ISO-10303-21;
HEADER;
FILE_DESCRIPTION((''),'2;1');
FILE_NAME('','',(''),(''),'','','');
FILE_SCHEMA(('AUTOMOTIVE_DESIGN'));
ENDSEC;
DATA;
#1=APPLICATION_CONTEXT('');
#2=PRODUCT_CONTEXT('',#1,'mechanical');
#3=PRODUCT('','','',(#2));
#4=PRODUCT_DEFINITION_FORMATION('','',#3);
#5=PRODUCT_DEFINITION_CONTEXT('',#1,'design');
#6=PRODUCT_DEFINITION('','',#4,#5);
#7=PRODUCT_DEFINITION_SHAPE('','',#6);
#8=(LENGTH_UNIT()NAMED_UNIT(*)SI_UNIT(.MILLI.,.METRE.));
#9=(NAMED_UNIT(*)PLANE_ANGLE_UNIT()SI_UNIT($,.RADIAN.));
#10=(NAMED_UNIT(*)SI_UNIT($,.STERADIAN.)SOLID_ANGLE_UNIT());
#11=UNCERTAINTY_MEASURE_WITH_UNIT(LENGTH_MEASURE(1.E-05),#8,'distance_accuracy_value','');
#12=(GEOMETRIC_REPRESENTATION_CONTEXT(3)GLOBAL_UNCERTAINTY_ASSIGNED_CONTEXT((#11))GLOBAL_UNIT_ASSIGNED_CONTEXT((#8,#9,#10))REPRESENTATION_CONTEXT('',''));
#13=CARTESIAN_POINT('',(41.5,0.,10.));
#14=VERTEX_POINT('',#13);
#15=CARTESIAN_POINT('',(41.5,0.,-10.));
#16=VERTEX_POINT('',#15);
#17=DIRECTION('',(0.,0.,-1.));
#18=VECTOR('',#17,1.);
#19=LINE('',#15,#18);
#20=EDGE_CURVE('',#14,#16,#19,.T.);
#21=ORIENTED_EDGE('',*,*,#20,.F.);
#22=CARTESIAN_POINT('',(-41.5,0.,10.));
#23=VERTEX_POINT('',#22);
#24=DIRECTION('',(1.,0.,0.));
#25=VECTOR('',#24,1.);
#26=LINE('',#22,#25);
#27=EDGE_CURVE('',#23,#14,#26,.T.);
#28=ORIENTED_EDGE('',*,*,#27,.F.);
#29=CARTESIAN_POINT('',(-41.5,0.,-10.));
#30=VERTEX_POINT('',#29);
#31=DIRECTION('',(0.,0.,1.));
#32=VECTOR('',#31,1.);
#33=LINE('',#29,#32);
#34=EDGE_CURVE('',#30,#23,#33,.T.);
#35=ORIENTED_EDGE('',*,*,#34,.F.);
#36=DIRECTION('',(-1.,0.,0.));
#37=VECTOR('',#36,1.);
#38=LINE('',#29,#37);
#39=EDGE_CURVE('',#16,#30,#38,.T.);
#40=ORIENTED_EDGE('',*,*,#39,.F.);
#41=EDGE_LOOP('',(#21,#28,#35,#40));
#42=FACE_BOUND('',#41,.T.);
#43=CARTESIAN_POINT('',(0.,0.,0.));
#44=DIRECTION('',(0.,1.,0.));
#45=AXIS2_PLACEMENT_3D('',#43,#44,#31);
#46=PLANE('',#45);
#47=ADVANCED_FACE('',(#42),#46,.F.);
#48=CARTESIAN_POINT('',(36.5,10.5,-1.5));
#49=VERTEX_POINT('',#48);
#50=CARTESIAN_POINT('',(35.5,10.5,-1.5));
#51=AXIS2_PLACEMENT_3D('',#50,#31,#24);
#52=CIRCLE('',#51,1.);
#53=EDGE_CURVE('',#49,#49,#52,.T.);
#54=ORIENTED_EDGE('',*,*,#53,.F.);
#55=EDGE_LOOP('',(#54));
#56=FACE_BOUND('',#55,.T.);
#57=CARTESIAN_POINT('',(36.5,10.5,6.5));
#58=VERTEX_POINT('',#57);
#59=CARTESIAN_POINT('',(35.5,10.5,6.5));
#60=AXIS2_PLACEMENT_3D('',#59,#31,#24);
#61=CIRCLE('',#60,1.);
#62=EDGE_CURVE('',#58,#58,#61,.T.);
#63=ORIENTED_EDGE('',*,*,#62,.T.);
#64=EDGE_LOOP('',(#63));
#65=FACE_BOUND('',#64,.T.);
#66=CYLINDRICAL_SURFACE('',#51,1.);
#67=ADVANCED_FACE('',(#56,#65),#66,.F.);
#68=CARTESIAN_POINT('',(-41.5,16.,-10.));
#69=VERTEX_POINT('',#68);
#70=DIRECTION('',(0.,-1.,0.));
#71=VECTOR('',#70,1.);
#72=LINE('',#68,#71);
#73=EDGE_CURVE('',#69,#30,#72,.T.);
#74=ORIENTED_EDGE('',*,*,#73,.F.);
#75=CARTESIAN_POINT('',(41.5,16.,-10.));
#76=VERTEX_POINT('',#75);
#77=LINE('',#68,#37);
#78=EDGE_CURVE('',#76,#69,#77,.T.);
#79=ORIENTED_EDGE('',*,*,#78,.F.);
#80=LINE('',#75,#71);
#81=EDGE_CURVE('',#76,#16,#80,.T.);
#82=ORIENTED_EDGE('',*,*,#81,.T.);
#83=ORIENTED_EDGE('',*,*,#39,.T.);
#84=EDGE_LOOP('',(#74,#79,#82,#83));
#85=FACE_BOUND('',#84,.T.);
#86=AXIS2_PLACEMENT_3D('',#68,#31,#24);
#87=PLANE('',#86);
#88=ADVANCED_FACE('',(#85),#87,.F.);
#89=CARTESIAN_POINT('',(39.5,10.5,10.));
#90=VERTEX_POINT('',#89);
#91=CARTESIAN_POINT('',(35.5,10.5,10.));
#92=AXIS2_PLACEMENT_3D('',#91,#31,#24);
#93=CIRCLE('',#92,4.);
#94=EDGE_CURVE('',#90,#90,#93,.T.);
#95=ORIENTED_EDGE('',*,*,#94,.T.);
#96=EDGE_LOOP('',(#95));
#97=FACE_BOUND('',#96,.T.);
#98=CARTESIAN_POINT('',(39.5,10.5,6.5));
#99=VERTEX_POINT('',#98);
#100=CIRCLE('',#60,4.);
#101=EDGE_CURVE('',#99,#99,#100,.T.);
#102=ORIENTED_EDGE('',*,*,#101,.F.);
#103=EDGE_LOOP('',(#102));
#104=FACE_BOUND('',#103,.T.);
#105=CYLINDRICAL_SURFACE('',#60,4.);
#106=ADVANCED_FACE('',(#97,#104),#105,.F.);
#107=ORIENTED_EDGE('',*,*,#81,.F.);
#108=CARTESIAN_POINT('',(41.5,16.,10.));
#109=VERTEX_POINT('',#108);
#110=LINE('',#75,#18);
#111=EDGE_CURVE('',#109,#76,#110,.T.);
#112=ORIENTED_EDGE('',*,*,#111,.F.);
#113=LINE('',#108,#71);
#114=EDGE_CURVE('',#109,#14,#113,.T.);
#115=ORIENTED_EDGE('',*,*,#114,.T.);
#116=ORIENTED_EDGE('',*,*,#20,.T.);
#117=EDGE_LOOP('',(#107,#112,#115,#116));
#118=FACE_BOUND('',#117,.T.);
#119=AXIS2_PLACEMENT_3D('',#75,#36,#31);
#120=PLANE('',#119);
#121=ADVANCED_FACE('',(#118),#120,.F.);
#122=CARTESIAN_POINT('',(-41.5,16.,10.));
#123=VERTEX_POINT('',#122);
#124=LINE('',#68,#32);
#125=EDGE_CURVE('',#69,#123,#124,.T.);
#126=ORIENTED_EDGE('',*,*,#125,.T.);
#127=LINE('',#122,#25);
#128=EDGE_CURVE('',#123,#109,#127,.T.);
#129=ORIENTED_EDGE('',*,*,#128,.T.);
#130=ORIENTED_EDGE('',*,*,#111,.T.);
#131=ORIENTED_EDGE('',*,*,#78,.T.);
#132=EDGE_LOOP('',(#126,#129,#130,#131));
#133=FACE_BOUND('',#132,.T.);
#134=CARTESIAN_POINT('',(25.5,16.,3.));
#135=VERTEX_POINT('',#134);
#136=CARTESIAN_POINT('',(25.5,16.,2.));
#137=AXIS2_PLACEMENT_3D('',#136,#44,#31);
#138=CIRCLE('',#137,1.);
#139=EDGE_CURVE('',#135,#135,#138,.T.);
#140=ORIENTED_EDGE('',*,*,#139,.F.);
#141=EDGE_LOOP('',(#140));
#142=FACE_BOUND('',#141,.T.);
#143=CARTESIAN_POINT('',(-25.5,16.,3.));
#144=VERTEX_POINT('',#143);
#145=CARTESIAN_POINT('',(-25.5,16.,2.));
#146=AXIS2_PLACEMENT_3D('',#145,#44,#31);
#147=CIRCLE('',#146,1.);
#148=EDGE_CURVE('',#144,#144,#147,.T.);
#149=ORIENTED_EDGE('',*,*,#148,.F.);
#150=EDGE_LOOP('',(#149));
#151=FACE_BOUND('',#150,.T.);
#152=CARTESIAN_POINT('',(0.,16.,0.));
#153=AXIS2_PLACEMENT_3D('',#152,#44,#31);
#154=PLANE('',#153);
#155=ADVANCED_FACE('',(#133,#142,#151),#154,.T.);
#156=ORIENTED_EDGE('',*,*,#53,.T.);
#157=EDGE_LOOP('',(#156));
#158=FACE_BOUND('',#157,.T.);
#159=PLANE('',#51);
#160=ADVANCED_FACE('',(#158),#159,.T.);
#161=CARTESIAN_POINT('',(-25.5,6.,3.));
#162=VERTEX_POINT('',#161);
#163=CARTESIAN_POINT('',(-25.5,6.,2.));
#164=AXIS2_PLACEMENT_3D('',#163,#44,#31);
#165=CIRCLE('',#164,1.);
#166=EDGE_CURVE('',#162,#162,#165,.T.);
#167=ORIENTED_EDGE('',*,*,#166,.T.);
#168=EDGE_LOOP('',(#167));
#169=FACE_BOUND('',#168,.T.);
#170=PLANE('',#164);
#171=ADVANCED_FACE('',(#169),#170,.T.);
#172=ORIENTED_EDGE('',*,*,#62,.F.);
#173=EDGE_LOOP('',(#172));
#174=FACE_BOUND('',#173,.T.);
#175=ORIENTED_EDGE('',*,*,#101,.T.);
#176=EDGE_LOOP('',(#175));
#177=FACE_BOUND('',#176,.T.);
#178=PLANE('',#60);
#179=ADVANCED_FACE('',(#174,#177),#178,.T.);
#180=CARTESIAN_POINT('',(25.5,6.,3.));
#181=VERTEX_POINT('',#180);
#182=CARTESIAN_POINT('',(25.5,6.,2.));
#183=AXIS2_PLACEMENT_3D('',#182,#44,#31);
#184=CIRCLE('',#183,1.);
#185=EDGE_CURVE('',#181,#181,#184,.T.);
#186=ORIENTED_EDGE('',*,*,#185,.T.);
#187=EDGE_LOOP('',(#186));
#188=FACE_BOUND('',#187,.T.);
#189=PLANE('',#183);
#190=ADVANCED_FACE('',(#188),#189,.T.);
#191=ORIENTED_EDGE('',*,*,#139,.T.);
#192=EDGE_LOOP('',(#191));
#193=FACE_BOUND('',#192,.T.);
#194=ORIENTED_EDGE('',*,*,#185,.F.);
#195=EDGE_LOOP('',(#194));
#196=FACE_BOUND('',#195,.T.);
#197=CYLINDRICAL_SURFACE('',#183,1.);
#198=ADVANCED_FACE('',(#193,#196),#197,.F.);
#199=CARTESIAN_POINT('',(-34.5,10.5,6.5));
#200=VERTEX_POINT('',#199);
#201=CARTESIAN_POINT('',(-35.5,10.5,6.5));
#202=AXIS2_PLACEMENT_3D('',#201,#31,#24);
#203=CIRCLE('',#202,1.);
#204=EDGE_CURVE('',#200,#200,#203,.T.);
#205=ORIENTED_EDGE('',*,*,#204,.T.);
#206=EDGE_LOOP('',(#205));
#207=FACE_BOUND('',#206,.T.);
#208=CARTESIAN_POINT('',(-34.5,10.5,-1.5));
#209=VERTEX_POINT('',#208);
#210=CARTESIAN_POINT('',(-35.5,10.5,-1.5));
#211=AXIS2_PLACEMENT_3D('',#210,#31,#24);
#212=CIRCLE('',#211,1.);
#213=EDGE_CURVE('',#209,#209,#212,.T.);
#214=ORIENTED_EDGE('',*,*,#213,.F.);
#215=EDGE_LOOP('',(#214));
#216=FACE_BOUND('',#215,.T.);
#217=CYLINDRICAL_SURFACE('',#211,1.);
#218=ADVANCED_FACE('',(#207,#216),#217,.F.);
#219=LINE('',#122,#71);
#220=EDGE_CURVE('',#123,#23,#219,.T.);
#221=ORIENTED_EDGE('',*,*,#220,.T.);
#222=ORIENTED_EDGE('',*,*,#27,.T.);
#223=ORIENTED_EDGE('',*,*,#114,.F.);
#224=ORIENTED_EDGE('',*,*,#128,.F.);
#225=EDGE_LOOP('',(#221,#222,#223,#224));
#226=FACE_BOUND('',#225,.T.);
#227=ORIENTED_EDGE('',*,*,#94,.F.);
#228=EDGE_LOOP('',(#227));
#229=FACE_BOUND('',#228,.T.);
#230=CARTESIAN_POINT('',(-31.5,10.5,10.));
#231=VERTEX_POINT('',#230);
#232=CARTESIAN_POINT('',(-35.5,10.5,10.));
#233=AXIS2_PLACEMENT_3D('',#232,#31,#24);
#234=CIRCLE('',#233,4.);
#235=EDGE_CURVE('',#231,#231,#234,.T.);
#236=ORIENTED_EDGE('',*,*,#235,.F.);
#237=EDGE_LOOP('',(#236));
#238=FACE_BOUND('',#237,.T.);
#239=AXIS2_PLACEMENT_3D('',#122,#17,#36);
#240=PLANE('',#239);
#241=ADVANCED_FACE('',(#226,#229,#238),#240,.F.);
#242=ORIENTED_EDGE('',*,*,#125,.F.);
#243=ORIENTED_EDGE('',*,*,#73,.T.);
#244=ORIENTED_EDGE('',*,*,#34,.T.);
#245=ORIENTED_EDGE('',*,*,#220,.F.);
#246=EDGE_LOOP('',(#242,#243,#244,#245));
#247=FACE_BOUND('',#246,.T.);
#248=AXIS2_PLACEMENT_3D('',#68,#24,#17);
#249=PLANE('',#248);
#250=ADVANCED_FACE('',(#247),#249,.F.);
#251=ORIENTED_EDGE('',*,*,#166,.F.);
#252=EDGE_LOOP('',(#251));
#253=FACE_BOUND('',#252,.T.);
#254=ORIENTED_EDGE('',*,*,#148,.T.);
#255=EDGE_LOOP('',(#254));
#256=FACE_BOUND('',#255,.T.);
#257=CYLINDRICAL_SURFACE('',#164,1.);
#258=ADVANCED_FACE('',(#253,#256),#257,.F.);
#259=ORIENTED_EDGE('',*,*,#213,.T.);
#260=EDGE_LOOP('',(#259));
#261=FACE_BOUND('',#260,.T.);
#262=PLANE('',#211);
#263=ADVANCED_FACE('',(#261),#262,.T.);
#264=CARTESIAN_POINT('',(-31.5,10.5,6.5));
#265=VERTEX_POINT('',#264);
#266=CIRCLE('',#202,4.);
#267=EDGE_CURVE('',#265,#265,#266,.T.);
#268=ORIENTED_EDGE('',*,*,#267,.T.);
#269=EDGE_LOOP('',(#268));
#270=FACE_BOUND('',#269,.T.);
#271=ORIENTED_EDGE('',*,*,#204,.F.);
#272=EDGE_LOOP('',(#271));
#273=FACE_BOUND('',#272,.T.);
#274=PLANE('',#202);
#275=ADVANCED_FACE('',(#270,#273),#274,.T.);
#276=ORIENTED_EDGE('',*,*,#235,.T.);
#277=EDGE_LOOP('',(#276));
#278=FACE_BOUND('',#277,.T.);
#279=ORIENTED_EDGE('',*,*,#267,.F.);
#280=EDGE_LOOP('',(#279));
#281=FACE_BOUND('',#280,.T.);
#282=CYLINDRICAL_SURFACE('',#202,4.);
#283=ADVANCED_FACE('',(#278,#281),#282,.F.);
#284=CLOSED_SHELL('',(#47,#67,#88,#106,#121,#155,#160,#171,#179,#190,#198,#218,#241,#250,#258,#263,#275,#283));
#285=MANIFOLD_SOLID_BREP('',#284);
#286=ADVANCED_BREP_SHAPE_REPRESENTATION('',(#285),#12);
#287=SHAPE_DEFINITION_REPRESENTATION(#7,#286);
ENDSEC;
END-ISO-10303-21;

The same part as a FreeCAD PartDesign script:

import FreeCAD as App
import Part
import Sketcher
from FreeCAD import Vector
Q = App.Units.Quantity


def add_polygon(sketch, points):
    """Adds a closed chain of lines whose ends are joined by coincident constraints."""
    first, n = sketch.GeometryCount, len(points)
    for a, b in zip(points, points[1:] + points[:1]):
        sketch.addGeometry(Part.LineSegment(App.Vector(*a, 0), App.Vector(*b, 0)), False)
    for i in range(n):
        sketch.addConstraint(Sketcher.Constraint("Coincident", first + i, 2, first + (i + 1) % n, 1))

doc = App.newDocument("Part")
body = doc.addObject("PartDesign::Body", "Body")

sketch1 = body.newObject("Sketcher::SketchObject", "Sketch")
sketch1.AttachmentSupport = (doc.getObject("XZ_Plane"), [""])
sketch1.MapMode = "FlatFace"
add_polygon(sketch1, [(-41.5, -10), (-41.5, 10), (41.5, 10), (41.5, -10)])
sketch1.addConstraint(Sketcher.Constraint("Vertical", 0))
sketch1.addConstraint(Sketcher.Constraint("Horizontal", 1))
sketch1.addConstraint(Sketcher.Constraint("Vertical", 2))
sketch1.addConstraint(Sketcher.Constraint("Horizontal", 3))
sketch1.addConstraint(Sketcher.Constraint("Symmetric", 0, 2, 2, 2, -1, 1))
sketch1.addConstraint(Sketcher.Constraint("DistanceX", 1, 1, 1, 2, Q("83 mm")))
sketch1.addConstraint(Sketcher.Constraint("DistanceY", 0, 1, 0, 2, Q("20 mm")))
pad1 = body.newObject("PartDesign::Pad", "Pad")
pad1.Profile = sketch1
pad1.Length = 16
pad1.Reversed = True

sketch2 = body.newObject("Sketcher::SketchObject", "Sketch001")
sketch2.AttachmentSupport = (doc.getObject("XY_Plane"), [""])
sketch2.MapMode = "FlatFace"
sketch2.AttachmentOffset = App.Placement(Vector(0, 0, 10), App.Rotation())
sketch2.addGeometry(Part.Circle(Vector(-35.5, 10.5, 0), Vector(0, 0, 1), 4), False)
sketch2.addGeometry(Part.Circle(Vector(35.5, 10.5, 0), Vector(0, 0, 1), 4), False)
sketch2.addConstraint(Sketcher.Constraint("Equal", 0, 1))
sketch2.addConstraint(Sketcher.Constraint("Symmetric", 0, 3, 1, 3, -2))
sketch2.addConstraint(Sketcher.Constraint("Diameter", 0, Q("8 mm")))
sketch2.addConstraint(Sketcher.Constraint("DistanceX", 0, 3, 1, 3, Q("71 mm")))
sketch2.addConstraint(Sketcher.Constraint("DistanceY", -1, 1, 0, 3, Q("10.5 mm")))
pocket1 = body.newObject("PartDesign::Pocket", "Pocket")
pocket1.Profile = sketch2
pocket1.Length = 3.5

sketch3 = body.newObject("Sketcher::SketchObject", "Sketch002")
sketch3.AttachmentSupport = (doc.getObject("XZ_Plane"), [""])
sketch3.MapMode = "FlatFace"
sketch3.AttachmentOffset = App.Placement(Vector(0, 0, -16), App.Rotation())
sketch3.addGeometry(Part.Circle(Vector(-25.5, 2, 0), Vector(0, 0, 1), 1), False)
sketch3.addGeometry(Part.Circle(Vector(25.5, 2, 0), Vector(0, 0, 1), 1), False)
sketch3.addConstraint(Sketcher.Constraint("Equal", 0, 1))
sketch3.addConstraint(Sketcher.Constraint("Symmetric", 0, 3, 1, 3, -2))
sketch3.addConstraint(Sketcher.Constraint("Diameter", 0, Q("2 mm")))
sketch3.addConstraint(Sketcher.Constraint("DistanceY", -1, 1, 0, 3, Q("2 mm")))
sketch3.addConstraint(Sketcher.Constraint("DistanceX", 0, 3, 1, 3, Q("51 mm")))
pocket2 = body.newObject("PartDesign::Pocket", "Pocket001")
pocket2.Profile = sketch3
pocket2.Length = 10
pocket2.Reversed = True

sketch4 = body.newObject("Sketcher::SketchObject", "Sketch003")
sketch4.AttachmentSupport = (doc.getObject("XY_Plane"), [""])
sketch4.MapMode = "FlatFace"
sketch4.AttachmentOffset = App.Placement(Vector(0, 0, 6.5), App.Rotation())
sketch4.addGeometry(Part.Circle(Vector(-35.5, 10.5, 0), Vector(0, 0, 1), 1), False)
sketch4.addGeometry(Part.Circle(Vector(35.5, 10.5, 0), Vector(0, 0, 1), 1), False)
sketch4.addConstraint(Sketcher.Constraint("Equal", 0, 1))
sketch4.addConstraint(Sketcher.Constraint("Symmetric", 0, 3, 1, 3, -2))
sketch4.addConstraint(Sketcher.Constraint("Diameter", 0, Q("2 mm")))
sketch4.addConstraint(Sketcher.Constraint("DistanceX", 0, 3, 1, 3, Q("71 mm")))
sketch4.addConstraint(Sketcher.Constraint("DistanceY", -1, 1, 0, 3, Q("10.5 mm")))
pocket3 = body.newObject("PartDesign::Pocket", "Pocket002")
pocket3.Profile = sketch4
pocket3.Length = 8

doc.recompute()
